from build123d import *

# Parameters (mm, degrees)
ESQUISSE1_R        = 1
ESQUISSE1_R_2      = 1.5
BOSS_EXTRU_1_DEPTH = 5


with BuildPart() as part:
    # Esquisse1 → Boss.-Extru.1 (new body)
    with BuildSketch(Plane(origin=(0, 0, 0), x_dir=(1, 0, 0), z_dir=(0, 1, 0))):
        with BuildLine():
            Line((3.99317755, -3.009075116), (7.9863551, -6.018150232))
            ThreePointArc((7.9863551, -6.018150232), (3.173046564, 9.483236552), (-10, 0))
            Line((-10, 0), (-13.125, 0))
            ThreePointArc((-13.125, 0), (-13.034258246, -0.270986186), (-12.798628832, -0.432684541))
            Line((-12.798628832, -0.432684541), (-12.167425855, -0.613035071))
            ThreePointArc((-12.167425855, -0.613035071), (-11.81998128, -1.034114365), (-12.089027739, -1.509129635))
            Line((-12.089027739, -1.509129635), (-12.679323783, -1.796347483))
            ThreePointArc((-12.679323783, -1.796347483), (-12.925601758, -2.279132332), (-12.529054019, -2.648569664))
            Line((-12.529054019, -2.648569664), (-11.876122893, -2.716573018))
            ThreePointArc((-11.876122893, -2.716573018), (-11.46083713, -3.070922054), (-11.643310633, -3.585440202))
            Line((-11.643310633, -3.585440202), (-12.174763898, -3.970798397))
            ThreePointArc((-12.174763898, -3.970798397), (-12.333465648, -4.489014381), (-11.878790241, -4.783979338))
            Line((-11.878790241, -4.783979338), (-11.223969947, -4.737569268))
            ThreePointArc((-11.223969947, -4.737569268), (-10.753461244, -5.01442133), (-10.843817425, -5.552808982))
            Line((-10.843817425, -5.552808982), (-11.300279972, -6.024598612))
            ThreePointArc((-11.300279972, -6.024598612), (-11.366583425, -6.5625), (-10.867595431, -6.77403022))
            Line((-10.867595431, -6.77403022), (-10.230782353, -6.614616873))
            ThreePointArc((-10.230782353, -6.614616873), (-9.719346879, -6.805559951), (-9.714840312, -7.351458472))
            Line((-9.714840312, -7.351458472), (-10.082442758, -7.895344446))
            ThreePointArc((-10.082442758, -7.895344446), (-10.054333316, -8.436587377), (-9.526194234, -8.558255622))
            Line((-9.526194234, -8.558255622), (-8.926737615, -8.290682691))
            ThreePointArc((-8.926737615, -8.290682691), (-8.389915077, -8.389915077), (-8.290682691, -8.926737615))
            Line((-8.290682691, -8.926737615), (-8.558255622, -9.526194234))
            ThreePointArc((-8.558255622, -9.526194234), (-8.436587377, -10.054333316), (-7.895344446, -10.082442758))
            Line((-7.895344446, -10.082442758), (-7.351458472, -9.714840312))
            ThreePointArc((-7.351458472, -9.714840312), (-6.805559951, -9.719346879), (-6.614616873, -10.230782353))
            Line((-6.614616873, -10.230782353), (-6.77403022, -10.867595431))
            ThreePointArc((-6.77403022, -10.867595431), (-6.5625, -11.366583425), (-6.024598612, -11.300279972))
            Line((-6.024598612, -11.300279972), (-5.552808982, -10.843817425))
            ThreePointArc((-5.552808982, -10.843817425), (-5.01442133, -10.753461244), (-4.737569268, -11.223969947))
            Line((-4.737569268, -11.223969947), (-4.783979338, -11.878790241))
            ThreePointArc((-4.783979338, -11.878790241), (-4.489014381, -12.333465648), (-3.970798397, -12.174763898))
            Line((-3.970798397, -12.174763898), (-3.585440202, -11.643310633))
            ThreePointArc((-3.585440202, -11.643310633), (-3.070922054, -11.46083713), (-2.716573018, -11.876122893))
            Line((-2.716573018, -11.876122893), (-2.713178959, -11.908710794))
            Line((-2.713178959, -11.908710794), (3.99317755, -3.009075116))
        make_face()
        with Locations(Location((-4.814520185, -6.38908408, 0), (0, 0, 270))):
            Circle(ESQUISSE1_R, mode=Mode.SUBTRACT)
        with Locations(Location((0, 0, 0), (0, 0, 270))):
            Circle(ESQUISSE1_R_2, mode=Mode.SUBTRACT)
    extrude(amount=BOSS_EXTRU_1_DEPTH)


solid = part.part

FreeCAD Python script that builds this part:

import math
import FreeCAD as App
import Part
import Sketcher

V = App.Vector

doc = App.newDocument("Part")
params = doc.addObject("Spreadsheet::Sheet", "Params")
for row, (alias, value) in enumerate([
    ("sketch1_diameter", "2 mm"),
    ("sketch1_diameter2", "3 mm"),
    ("sketch1_radius", "10 mm"),
    ("sketch1_radius2", "0.45 mm"),
    ("sketch1_radius3", "0.45 mm"),
    ("pad1_length", "5 mm"),
], start=1):
    params.set(f"A{row}", alias)
    params.set(f"B{row}", "=" + value)
    params.setAlias(f"B{row}", alias)

body = doc.addObject("PartDesign::Body", "Body")

# Sketch on XZ plane
sketch1 = body.newObject("Sketcher::SketchObject", "Sketch")
sketch1.AttachmentSupport = (doc.getObject("XZ_Plane"), [""])
sketch1.MapMode = "FlatFace"
sketch1.addGeometry(Part.LineSegment(V(3.993178, 3.009075, 0), V(7.986355, 6.01815, 0)), False)
sketch1.addGeometry(Part.ArcOfCircle(Part.Circle(V(0, 0, 0), V(0, 0, 1), 10), math.radians(180), math.radians(397)), False)
sketch1.addGeometry(Part.LineSegment(V(-10, 0, 0), V(-13.125, 0, 0)), False)
sketch1.addGeometry(Part.ArcOfCircle(Part.Circle(V(-12.675, 0, 0), V(0, 0, 1), 0.45), math.radians(105.945968), math.radians(180)), False)
sketch1.addGeometry(Part.LineSegment(V(-12.798629, 0.432685, 0), V(-12.167426, 0.613035, 0)), False)
sketch1.addGeometry(Part.ArcOfCircle(Part.Circle(V(-12.299731, 1.076087, 0), V(0, 0, 1), 0.481583), math.radians(-74.054032), math.radians(64.054032)), False)
sketch1.addGeometry(Part.LineSegment(V(-12.089028, 1.50913, 0), V(-12.679324, 1.796347, 0)), False)
sketch1.addGeometry(Part.ArcOfCircle(Part.Circle(V(-12.482438, 2.200991, 0), V(0, 0, 1), 0.45), math.radians(95.945969), math.radians(244.054031)), False)
sketch1.addGeometry(Part.LineSegment(V(-12.529054, 2.64857, 0), V(-11.876123, 2.716573, 0)), False)
sketch1.addGeometry(Part.ArcOfCircle(Part.Circle(V(-11.92601, 3.195565, 0), V(0, 0, 1), 0.481583), math.radians(-84.054032), math.radians(54.054032)), False)
sketch1.addGeometry(Part.LineSegment(V(-11.643311, 3.58544, 0), V(-12.174764, 3.970798, 0)), False)
sketch1.addGeometry(Part.ArcOfCircle(Part.Circle(V(-11.910604, 4.335105, 0), V(0, 0, 1), 0.45), math.radians(85.945969), math.radians(234.054031)), False)
sketch1.addGeometry(Part.LineSegment(V(-11.87879, 4.783979, 0), V(-11.22397, 4.737569, 0)), False)
sketch1.addGeometry(Part.ArcOfCircle(Part.Circle(V(-11.189923, 5.217947, 0), V(0, 0, 1), 0.481583), math.radians(-94.054031), math.radians(44.054031)), False)
sketch1.addGeometry(Part.LineSegment(V(-10.843817, 5.552809, 0), V(-11.30028, 6.024599, 0)), False)
sketch1.addGeometry(Part.ArcOfCircle(Part.Circle(V(-10.976872, 6.3375, 0), V(0, 0, 1), 0.45), math.radians(75.945968), math.radians(224.054032)), False)
sketch1.addGeometry(Part.LineSegment(V(-10.867595, 6.77403, 0), V(-10.230782, 6.614617, 0)), False)
sketch1.addGeometry(Part.ArcOfCircle(Part.Circle(V(-10.113836, 7.081784, 0), V(0, 0, 1), 0.481583), math.radians(-104.054031), math.radians(34.054032)), False)
sketch1.addGeometry(Part.LineSegment(V(-9.71484, 7.351458, 0), V(-10.082443, 7.895344, 0)), False)
sketch1.addGeometry(Part.ArcOfCircle(Part.Circle(V(-9.709613, 8.147333, 0), V(0, 0, 1), 0.45), math.radians(65.945968), math.radians(214.054032)), False)
sketch1.addGeometry(Part.LineSegment(V(-9.526194, 8.558256, 0), V(-8.926738, 8.290683, 0)), False)
sketch1.addGeometry(Part.ArcOfCircle(Part.Circle(V(-8.730445, 8.730445, 0), V(0, 0, 1), 0.481583), math.radians(-114.054031), math.radians(24.054031)), False)
sketch1.addGeometry(Part.LineSegment(V(-8.290683, 8.926738, 0), V(-8.558256, 9.526194, 0)), False)
sketch1.addGeometry(Part.ArcOfCircle(Part.Circle(V(-8.147333, 9.709613, 0), V(0, 0, 1), 0.45), math.radians(55.945968), math.radians(204.054032)), False)
sketch1.addGeometry(Part.LineSegment(V(-7.895344, 10.082443, 0), V(-7.351458, 9.71484, 0)), False)
sketch1.addGeometry(Part.ArcOfCircle(Part.Circle(V(-7.081784, 10.113836, 0), V(0, 0, 1), 0.481583), math.radians(-124.054032), math.radians(14.054031)), False)
sketch1.addGeometry(Part.LineSegment(V(-6.614617, 10.230782, 0), V(-6.77403, 10.867595, 0)), False)
sketch1.addGeometry(Part.ArcOfCircle(Part.Circle(V(-6.3375, 10.976872, 0), V(0, 0, 1), 0.45), math.radians(45.945968), math.radians(194.054032)), False)
sketch1.addGeometry(Part.LineSegment(V(-6.024599, 11.30028, 0), V(-5.552809, 10.843817, 0)), False)
sketch1.addGeometry(Part.ArcOfCircle(Part.Circle(V(-5.217947, 11.189923, 0), V(0, 0, 1), 0.481583), math.radians(-134.054031), math.radians(4.054031)), False)
sketch1.addGeometry(Part.LineSegment(V(-4.737569, 11.22397, 0), V(-4.783979, 11.87879, 0)), False)
sketch1.addGeometry(Part.ArcOfCircle(Part.Circle(V(-4.335105, 11.910604, 0), V(0, 0, 1), 0.45), math.radians(35.945969), math.radians(184.054031)), False)
sketch1.addGeometry(Part.LineSegment(V(-3.970798, 12.174764, 0), V(-3.58544, 11.643311, 0)), False)
sketch1.addGeometry(Part.ArcOfCircle(Part.Circle(V(-3.195565, 11.92601, 0), V(0, 0, 1), 0.481583), math.radians(-144.054032), math.radians(-5.945968)), False)
sketch1.addGeometry(Part.LineSegment(V(-2.716573, 11.876123, 0), V(-2.713179, 11.908711, 0)), False)
sketch1.addGeometry(Part.LineSegment(V(-2.713179, 11.908711, 0), V(3.993178, 3.009075, 0)), False)
sketch1.addGeometry(Part.Circle(V(-4.81452, 6.389084, 0), V(0, 0, 1), 1), False)
sketch1.addGeometry(Part.Circle(V(0, 0, 0), V(0, 0, 1), 1.5), False)
sketch1.addConstraint(Sketcher.Constraint("Coincident", 0, 2, 1, 2))
sketch1.addConstraint(Sketcher.Constraint("Coincident", 1, 1, 2, 1))
sketch1.addConstraint(Sketcher.Constraint("Coincident", 2, 2, 3, 2))
sketch1.addConstraint(Sketcher.Constraint("Coincident", 3, 1, 4, 1))
sketch1.addConstraint(Sketcher.Constraint("Coincident", 4, 2, 5, 1))
sketch1.addConstraint(Sketcher.Constraint("Coincident", 5, 2, 6, 1))
sketch1.addConstraint(Sketcher.Constraint("Coincident", 6, 2, 7, 2))
sketch1.addConstraint(Sketcher.Constraint("Coincident", 7, 1, 8, 1))
sketch1.addConstraint(Sketcher.Constraint("Coincident", 8, 2, 9, 1))
sketch1.addConstraint(Sketcher.Constraint("Coincident", 9, 2, 10, 1))
sketch1.addConstraint(Sketcher.Constraint("Coincident", 10, 2, 11, 2))
sketch1.addConstraint(Sketcher.Constraint("Coincident", 11, 1, 12, 1))
sketch1.addConstraint(Sketcher.Constraint("Coincident", 12, 2, 13, 1))
sketch1.addConstraint(Sketcher.Constraint("Coincident", 13, 2, 14, 1))
sketch1.addConstraint(Sketcher.Constraint("Coincident", 14, 2, 15, 2))
sketch1.addConstraint(Sketcher.Constraint("Coincident", 15, 1, 16, 1))
sketch1.addConstraint(Sketcher.Constraint("Coincident", 16, 2, 17, 1))
sketch1.addConstraint(Sketcher.Constraint("Coincident", 17, 2, 18, 1))
sketch1.addConstraint(Sketcher.Constraint("Coincident", 18, 2, 19, 2))
sketch1.addConstraint(Sketcher.Constraint("Coincident", 19, 1, 20, 1))
sketch1.addConstraint(Sketcher.Constraint("Coincident", 20, 2, 21, 1))
sketch1.addConstraint(Sketcher.Constraint("Coincident", 21, 2, 22, 1))
sketch1.addConstraint(Sketcher.Constraint("Coincident", 22, 2, 23, 2))
sketch1.addConstraint(Sketcher.Constraint("Coincident", 23, 1, 24, 1))
sketch1.addConstraint(Sketcher.Constraint("Coincident", 24, 2, 25, 1))
sketch1.addConstraint(Sketcher.Constraint("Coincident", 25, 2, 26, 1))
sketch1.addConstraint(Sketcher.Constraint("Coincident", 26, 2, 27, 2))
sketch1.addConstraint(Sketcher.Constraint("Coincident", 27, 1, 28, 1))
sketch1.addConstraint(Sketcher.Constraint("Coincident", 28, 2, 29, 1))
sketch1.addConstraint(Sketcher.Constraint("Coincident", 29, 2, 30, 1))
sketch1.addConstraint(Sketcher.Constraint("Coincident", 30, 2, 31, 2))
sketch1.addConstraint(Sketcher.Constraint("Coincident", 31, 1, 32, 1))
sketch1.addConstraint(Sketcher.Constraint("Coincident", 32, 2, 33, 1))
sketch1.addConstraint(Sketcher.Constraint("Coincident", 33, 2, 34, 1))
sketch1.addConstraint(Sketcher.Constraint("Coincident", 34, 2, 35, 1))
sketch1.addConstraint(Sketcher.Constraint("Coincident", 35, 2, 0, 1))
sketch1.addConstraint(Sketcher.Constraint("Horizontal", 2))
sketch1.addConstraint(Sketcher.Constraint("Coincident", 1, 3, -1, 1))
sketch1.addConstraint(Sketcher.Constraint("Coincident", 37, 3, -1, 1))
sketch1.addConstraint(Sketcher.Constraint("PointOnObject", 3, 3, -1))
sketch1.addConstraint(Sketcher.Constraint("PointOnObject", 1, 1, -1))
sketch1.addConstraint(Sketcher.Constraint("Diameter", 36, 2.0))
sketch1.addConstraint(Sketcher.Constraint("Diameter", 37, 3.0))
sketch1.addConstraint(Sketcher.Constraint("Radius", 1, 10.0))
sketch1.addConstraint(Sketcher.Constraint("Radius", 3, 0.45))
sketch1.addConstraint(Sketcher.Constraint("Radius", 7, 0.45))
sketch1.addConstraint(Sketcher.Constraint("Radius", 11, 0.45))
sketch1.addConstraint(Sketcher.Constraint("Radius", 15, 0.45))
sketch1.addConstraint(Sketcher.Constraint("Radius", 19, 0.45))
sketch1.addConstraint(Sketcher.Constraint("Radius", 23, 0.45))
sketch1.addConstraint(Sketcher.Constraint("Radius", 27, 0.45))
sketch1.addConstraint(Sketcher.Constraint("Radius", 31, 0.45))
sketch1.addConstraint(Sketcher.Constraint("Distance", 0, 5.0))
sketch1.addConstraint(Sketcher.Constraint("DistanceX", 2, 2, 2, 1, 3.125))
sketch1.addConstraint(Sketcher.Constraint("Radius", 5, 0.481583))
sketch1.addConstraint(Sketcher.Constraint("Radius", 9, 0.481583))
sketch1.addConstraint(Sketcher.Constraint("Radius", 13, 0.481583))
sketch1.addConstraint(Sketcher.Constraint("Radius", 17, 0.481583))
sketch1.addConstraint(Sketcher.Constraint("Radius", 21, 0.481583))
sketch1.addConstraint(Sketcher.Constraint("Radius", 25, 0.481583))
sketch1.addConstraint(Sketcher.Constraint("Radius", 29, 0.481583))
sketch1.addConstraint(Sketcher.Constraint("Radius", 33, 0.481583))
sketch1.addConstraint(Sketcher.Constraint("DistanceY", -1, 1, 15, 3, 6.3375))
sketch1.addConstraint(Sketcher.Constraint("DistanceX", 27, 3, -1, 1, 6.3375))
sketch1.addConstraint(Sketcher.Constraint("DistanceY", -1, 1, 10, 2, 3.970798))
sketch1.addConstraint(Sketcher.Constraint("DistanceY", -1, 1, 14, 2, 6.024599))
sketch1.addConstraint(Sketcher.Constraint("DistanceX", 27, 1, -1, 1, 6.024599))
sketch1.addConstraint(Sketcher.Constraint("DistanceX", 31, 1, -1, 1, 3.970798))
sketch1.addConstraint(Sketcher.Constraint("DistanceX", 7, 3, 17, 3, 2.368602))
sketch1.addConstraint(Sketcher.Constraint("DistanceY", 13, 3, 21, 3, 3.512499))
sketch1.addConstraint(Sketcher.Constraint("DistanceX", 21, 3, 29, 3, 3.512499))
sketch1.addConstraint(Sketcher.Constraint("DistanceX", 4, 2, 5, 2, 0.078398))
sketch1.addConstraint(Sketcher.Constraint("DistanceX", 3, 1, 5, 2, 0.709601))
sketch1.addConstraint(Sketcher.Constraint("DistanceX", 6, 2, 8, 2, 0.803201))
sketch1.addConstraint(Sketcher.Constraint("DistanceX", 9, 3, 9, 2, 0.2827))
sketch1.addConstraint(Sketcher.Constraint("DistanceX", 21, 3, 23, 1, 0.835101))
sketch1.addConstraint(Sketcher.Constraint("DistanceY", 32, 2, 33, 3, 0.2827))
sketch1.addConstraint(Sketcher.Constraint("DistanceY", 34, 2, 33, 3, 0.0173))
sketch1.addConstraint(Sketcher.Constraint("Distance", 35, 11.143551))
sketch1.addConstraint(Sketcher.Constraint("DistanceX", 5, 3, -1, 1, 12.299731))
sketch1.addConstraint(Sketcher.Constraint("DistanceX", 7, 3, -1, 1, 12.482438))
sketch1.addConstraint(Sketcher.Constraint("DistanceY", -1, 1, 7, 3, 2.200991))
sketch1.addConstraint(Sketcher.Constraint("DistanceX", 9, 3, -1, 1, 11.92601))
sketch1.addConstraint(Sketcher.Constraint("DistanceX", 15, 3, -1, 1, 10.976872))
sketch1.addConstraint(Sketcher.Constraint("DistanceY", -1, 1, 27, 3, 10.976872))
sketch1.addConstraint(Sketcher.Constraint("DistanceY", -1, 1, 33, 3, 11.92601))
sketch1.addConstraint(Sketcher.Constraint("DistanceX", 36, 3, -1, 1, 4.81452))
sketch1.addConstraint(Sketcher.Constraint("DistanceY", -1, 1, 0, 2, 6.01815))
sketch1.addConstraint(Sketcher.Constraint("DistanceX", 3, 1, -1, 1, 12.798629))
sketch1.addConstraint(Sketcher.Constraint("DistanceY", -1, 1, 5, 2, 1.50913))
sketch1.addConstraint(Sketcher.Constraint("DistanceY", -1, 1, 7, 1, 2.64857))
sketch1.addConstraint(Sketcher.Constraint("DistanceY", -1, 1, 9, 2, 3.58544))
sketch1.addConstraint(Sketcher.Constraint("DistanceX", 11, 1, -1, 1, 11.87879))
sketch1.addConstraint(Sketcher.Constraint("DistanceY", -1, 1, 11, 1, 4.783979))
sketch1.addConstraint(Sketcher.Constraint("DistanceX", 12, 2, -1, 1, 11.22397))
sketch1.addConstraint(Sketcher.Constraint("DistanceY", -1, 1, 12, 2, 4.737569))
sketch1.addConstraint(Sketcher.Constraint("DistanceY", -1, 1, 13, 2, 5.552809))
sketch1.addConstraint(Sketcher.Constraint("DistanceY", -1, 1, 15, 1, 6.77403))
sketch1.addConstraint(Sketcher.Constraint("DistanceX", 17, 2, -1, 1, 9.71484))
sketch1.addConstraint(Sketcher.Constraint("DistanceY", -1, 1, 17, 2, 7.351458))
sketch1.addConstraint(Sketcher.Constraint("DistanceX", 24, 2, -1, 1, 7.351458))
sketch1.addConstraint(Sketcher.Constraint("DistanceY", -1, 1, 24, 2, 9.71484))
sketch1.addConstraint(Sketcher.Constraint("DistanceX", 26, 2, -1, 1, 6.77403))
sketch1.addConstraint(Sketcher.Constraint("DistanceX", 28, 2, -1, 1, 5.552809))
sketch1.addConstraint(Sketcher.Constraint("DistanceX", 29, 2, -1, 1, 4.737569))
sketch1.addConstraint(Sketcher.Constraint("DistanceY", -1, 1, 29, 2, 11.22397))
sketch1.addConstraint(Sketcher.Constraint("DistanceX", 30, 2, -1, 1, 4.783979))
sketch1.addConstraint(Sketcher.Constraint("DistanceY", -1, 1, 30, 2, 11.87879))
sketch1.addConstraint(Sketcher.Constraint("DistanceX", 32, 2, -1, 1, 3.58544))
sketch1.addConstraint(Sketcher.Constraint("DistanceX", 34, 2, -1, 1, 2.713179))
sketch1.addConstraint(Sketcher.Constraint("DistanceY", 9, 3, 11, 3, 1.13954))
sketch1.addConstraint(Sketcher.Constraint("DistanceX", 11, 3, 13, 3, 0.720681))
sketch1.addConstraint(Sketcher.Constraint("DistanceY", 17, 3, 19, 3, 1.065549))
sketch1.addConstraint(Sketcher.Constraint("DistanceX", 15, 3, 19, 3, 1.267259))
sketch1.addConstraint(Sketcher.Constraint("DistanceX", 17, 3, 21, 3, 1.383391))
sketch1.addConstraint(Sketcher.Constraint("DistanceX", 19, 3, 23, 3, 1.56228))
sketch1.addConstraint(Sketcher.Constraint("DistanceY", 19, 3, 23, 3, 1.56228))
sketch1.addConstraint(Sketcher.Constraint("DistanceX", 23, 3, 25, 3, 1.065549))
sketch1.addConstraint(Sketcher.Constraint("DistanceX", 29, 3, 31, 3, 0.882842))
sketch1.addConstraint(Sketcher.Constraint("DistanceY", 36, 3, 21, 3, 2.341361))
sketch1.addConstraint(Sketcher.Constraint("DistanceY", 5, 3, 6, 2, 0.72026))
sketch1.addConstraint(Sketcher.Constraint("DistanceX", 15, 3, 16, 2, 0.74609))
sketch1.addConstraint(Sketcher.Constraint("DistanceX", 18, 2, 19, 3, 0.372829))
sketch1.addConstraint(Sketcher.Constraint("DistanceX", 19, 3, 19, 1, 0.183419))
sketch1.addConstraint(Sketcher.Constraint("DistanceY", 19, 3, 20, 2, 0.14335))
sketch1.addConstraint(Sketcher.Constraint("DistanceX", 21, 2, 23, 3, 0.14335))
sketch1.addConstraint(Sketcher.Constraint("DistanceY", 22, 2, 23, 3, 0.183419))
sketch1.addConstraint(Sketcher.Constraint("DistanceY", 25, 2, 27, 3, 0.74609))
sketch1.addConstraint(Sketcher.Constraint("DistanceX", 33, 3, 33, 2, 0.478992))
sketch1.setExpression("Constraints[41]", "Params.sketch1_diameter")
sketch1.setExpression("Constraints[42]", "Params.sketch1_diameter2")
sketch1.setExpression("Constraints[43]", "Params.sketch1_radius")
sketch1.setExpression("Constraints[44]", "Params.sketch1_radius2")
sketch1.setExpression("Constraints[45]", "Params.sketch1_radius3")
pad1 = body.newObject("PartDesign::Pad", "Pad")
pad1.Profile = sketch1
pad1.setExpression("Length", "Params.pad1_length")
pad1.Reversed = True

doc.recompute()
